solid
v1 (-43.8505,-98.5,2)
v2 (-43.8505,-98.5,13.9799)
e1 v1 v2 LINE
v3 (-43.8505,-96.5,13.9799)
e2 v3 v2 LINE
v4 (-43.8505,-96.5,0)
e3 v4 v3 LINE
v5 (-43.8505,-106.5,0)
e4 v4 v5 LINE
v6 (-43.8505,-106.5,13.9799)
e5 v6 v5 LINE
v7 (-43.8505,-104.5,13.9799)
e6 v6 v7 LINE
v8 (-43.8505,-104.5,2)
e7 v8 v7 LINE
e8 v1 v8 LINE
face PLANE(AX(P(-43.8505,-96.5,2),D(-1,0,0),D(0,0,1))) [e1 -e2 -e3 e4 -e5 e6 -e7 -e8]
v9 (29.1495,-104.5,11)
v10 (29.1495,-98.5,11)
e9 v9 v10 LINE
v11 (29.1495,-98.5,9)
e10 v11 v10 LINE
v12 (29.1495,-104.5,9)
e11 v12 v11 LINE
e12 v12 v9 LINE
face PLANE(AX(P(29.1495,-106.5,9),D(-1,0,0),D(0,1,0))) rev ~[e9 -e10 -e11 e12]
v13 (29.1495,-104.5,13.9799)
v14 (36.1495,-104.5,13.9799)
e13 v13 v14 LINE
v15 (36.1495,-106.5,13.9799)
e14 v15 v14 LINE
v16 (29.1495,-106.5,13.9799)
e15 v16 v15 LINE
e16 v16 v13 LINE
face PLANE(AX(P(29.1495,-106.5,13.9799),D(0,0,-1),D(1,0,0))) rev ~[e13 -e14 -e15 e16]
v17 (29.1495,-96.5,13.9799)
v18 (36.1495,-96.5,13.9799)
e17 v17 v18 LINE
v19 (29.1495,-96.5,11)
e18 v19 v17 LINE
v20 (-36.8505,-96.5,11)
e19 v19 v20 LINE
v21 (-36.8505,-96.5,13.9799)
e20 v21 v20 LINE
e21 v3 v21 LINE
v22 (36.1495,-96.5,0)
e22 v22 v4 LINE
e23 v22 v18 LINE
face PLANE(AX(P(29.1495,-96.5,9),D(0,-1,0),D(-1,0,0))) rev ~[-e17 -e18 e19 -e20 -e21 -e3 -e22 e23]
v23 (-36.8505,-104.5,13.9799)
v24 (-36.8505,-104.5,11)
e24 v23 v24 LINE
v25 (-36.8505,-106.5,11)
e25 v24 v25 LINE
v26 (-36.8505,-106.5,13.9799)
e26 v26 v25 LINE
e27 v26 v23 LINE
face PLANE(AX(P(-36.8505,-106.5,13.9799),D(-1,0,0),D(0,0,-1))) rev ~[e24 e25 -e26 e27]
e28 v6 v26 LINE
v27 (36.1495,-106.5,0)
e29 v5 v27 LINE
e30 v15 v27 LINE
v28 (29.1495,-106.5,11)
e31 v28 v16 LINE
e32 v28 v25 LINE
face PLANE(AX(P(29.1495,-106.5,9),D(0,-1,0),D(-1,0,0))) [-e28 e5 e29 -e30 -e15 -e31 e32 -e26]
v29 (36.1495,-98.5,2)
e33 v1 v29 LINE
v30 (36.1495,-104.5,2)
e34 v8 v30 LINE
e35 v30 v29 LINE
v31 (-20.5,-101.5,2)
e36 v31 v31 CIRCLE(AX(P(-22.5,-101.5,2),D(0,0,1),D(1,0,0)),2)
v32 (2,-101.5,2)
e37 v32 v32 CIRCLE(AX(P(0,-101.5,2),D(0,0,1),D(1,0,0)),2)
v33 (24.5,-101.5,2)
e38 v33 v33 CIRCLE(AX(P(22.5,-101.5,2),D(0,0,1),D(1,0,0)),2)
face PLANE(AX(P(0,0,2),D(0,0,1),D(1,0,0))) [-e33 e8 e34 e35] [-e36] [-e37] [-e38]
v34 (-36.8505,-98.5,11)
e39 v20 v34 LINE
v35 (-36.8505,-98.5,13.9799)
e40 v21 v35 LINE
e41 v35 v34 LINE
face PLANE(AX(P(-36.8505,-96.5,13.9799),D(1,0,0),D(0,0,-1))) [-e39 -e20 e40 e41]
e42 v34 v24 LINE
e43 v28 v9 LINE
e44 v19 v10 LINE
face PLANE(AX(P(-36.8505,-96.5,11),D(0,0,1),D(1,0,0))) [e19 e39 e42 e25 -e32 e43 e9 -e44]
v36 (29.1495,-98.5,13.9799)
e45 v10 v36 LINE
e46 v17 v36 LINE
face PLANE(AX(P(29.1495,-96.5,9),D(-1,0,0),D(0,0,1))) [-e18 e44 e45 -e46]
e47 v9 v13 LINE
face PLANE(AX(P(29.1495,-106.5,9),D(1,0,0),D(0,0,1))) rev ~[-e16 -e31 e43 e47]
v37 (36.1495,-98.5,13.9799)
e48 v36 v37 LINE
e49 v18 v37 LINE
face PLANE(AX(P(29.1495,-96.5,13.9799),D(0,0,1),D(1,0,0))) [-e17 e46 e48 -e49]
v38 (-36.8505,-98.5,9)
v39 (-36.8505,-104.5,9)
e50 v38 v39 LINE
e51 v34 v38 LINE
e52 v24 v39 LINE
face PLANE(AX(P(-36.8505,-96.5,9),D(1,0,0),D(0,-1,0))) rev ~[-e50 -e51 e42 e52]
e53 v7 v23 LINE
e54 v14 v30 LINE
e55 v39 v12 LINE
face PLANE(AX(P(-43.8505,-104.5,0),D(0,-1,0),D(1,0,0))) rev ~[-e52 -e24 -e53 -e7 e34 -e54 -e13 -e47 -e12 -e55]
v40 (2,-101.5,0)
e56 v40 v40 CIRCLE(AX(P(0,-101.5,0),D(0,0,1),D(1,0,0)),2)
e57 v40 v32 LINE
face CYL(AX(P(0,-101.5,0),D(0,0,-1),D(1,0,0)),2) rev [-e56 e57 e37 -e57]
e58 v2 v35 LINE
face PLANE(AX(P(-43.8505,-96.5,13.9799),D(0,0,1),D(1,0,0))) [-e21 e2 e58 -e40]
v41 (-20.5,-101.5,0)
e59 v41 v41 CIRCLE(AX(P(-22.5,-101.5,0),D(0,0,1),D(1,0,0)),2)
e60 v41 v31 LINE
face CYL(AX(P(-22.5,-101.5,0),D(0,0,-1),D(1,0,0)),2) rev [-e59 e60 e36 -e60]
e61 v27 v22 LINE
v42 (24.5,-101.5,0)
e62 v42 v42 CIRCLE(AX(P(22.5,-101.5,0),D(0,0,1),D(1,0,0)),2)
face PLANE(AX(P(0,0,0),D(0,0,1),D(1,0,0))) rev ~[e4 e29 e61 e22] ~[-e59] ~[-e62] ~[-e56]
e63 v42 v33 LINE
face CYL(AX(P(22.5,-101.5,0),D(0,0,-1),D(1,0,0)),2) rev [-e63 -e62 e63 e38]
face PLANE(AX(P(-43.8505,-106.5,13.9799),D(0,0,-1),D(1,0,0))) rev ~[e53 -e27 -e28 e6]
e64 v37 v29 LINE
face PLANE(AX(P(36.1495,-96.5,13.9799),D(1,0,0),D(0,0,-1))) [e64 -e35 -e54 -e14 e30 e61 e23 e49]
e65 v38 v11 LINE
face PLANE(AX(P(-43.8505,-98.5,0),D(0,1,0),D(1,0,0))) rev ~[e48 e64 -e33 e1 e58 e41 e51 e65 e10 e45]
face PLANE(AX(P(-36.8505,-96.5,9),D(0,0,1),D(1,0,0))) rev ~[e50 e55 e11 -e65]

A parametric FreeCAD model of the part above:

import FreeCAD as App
import Part
import Sketcher
from FreeCAD import Vector

doc = App.newDocument("Part")
body = doc.addObject("PartDesign::Body", "Body")

# Sketch on XY plane
sketch1 = doc.addObject("Sketcher::SketchObject", "Sketch")
body.addObject(sketch1)
sketch1.AttachmentSupport = (doc.XY_Plane, [""])
sketch1.MapMode = "FlatFace"
sketch1.addGeometry([
    Part.LineSegment(Vector(36.1495, -106.5, 0), Vector(36.1495, -96.5, 0)),  # 0
    Part.LineSegment(Vector(36.1495, -96.5, 0), Vector(-43.8505, -96.5, 0)),  # 1
    Part.LineSegment(Vector(-43.8505, -96.5, 0), Vector(-43.8505, -106.5, 0)),  # 2
    Part.LineSegment(Vector(-43.8505, -106.5, 0), Vector(36.1495, -106.5, 0)),  # 3
    Part.Circle(Vector(-22.5, -101.5, 0), Vector(0, 0, 1), 2),  # 4
    Part.Circle(Vector(0, -101.5, 0), Vector(0, 0, 1), 2),  # 5
    Part.Circle(Vector(22.5, -101.5, 0), Vector(0, 0, 1), 2),  # 6
], False)
sketch1.addConstraint([
    Sketcher.Constraint("Coincident", 0, 2, 1, 1),
    Sketcher.Constraint("Coincident", 1, 2, 2, 1),
    Sketcher.Constraint("Coincident", 2, 2, 3, 1),
    Sketcher.Constraint("Coincident", 3, 2, 0, 1),
    Sketcher.Constraint("Vertical", 0),
    Sketcher.Constraint("Horizontal", 1),
    Sketcher.Constraint("Vertical", 2),
    Sketcher.Constraint("Horizontal", 3),
    Sketcher.Constraint("Equal", 4, 5),
    Sketcher.Constraint("Equal", 5, 6),
    Sketcher.Constraint("Symmetric", 4, 3, 6, 3, -2),
    Sketcher.Constraint("PointOnObject", 5, 3, -2),
    Sketcher.Constraint("Horizontal", 4, 3, 5, 3),
    Sketcher.Constraint("Diameter", 4, 4.0),
    Sketcher.Constraint("DistanceX", 1, 2, 1, 1, 80.0),
    Sketcher.Constraint("DistanceY", 0, 1, 0, 2, 10.0),
    Sketcher.Constraint("DistanceY", 6, 3, 0, 2, 5.0),
    Sketcher.Constraint("DistanceX", 4, 3, 6, 3, 45.0),
    Sketcher.Constraint("DistanceY", 4, 3, -1, 1, 101.5),
    Sketcher.Constraint("DistanceX", -1, 1, 0, 2, 36.1495),
])
pad1 = doc.addObject("PartDesign::Pad", "Pad")
body.addObject(pad1)
pad1.Profile = sketch1
pad1.Length = 2

# Sketch on XZ plane
sketch2 = doc.addObject("Sketcher::SketchObject", "Sketch001")
body.addObject(sketch2)
sketch2.AttachmentSupport = (doc.XZ_Plane, [""])
sketch2.MapMode = "FlatFace"
sketch2.AttachmentOffset = App.Placement(Vector(0, 0, 106.5), App.Rotation())
sketch2.addGeometry([
    Part.LineSegment(Vector(-43.8505, 13.9799, 0), Vector(-43.8505, 2, 0)),  # 0
    Part.LineSegment(Vector(-43.8505, 2, 0), Vector(36.1495, 2, 0)),  # 1
    Part.LineSegment(Vector(36.1495, 2, 0), Vector(36.1495, 13.9799, 0)),  # 2
    Part.LineSegment(Vector(36.1495, 13.9799, 0), Vector(29.1495, 13.9799, 0)),  # 3
    Part.LineSegment(Vector(29.1495, 13.9799, 0), Vector(29.1495, 9, 0)),  # 4
    Part.LineSegment(Vector(29.1495, 9, 0), Vector(-36.8505, 9, 0)),  # 5
    Part.LineSegment(Vector(-36.8505, 9, 0), Vector(-36.8505, 13.9799, 0)),  # 6
    Part.LineSegment(Vector(-36.8505, 13.9799, 0), Vector(-43.8505, 13.9799, 0)),  # 7
], False)
sketch2.addConstraint([
    Sketcher.Constraint("Coincident", 0, 2, 1, 1),
    Sketcher.Constraint("Coincident", 1, 2, 2, 1),
    Sketcher.Constraint("Coincident", 2, 2, 3, 1),
    Sketcher.Constraint("Coincident", 3, 2, 4, 1),
    Sketcher.Constraint("Coincident", 4, 2, 5, 1),
    Sketcher.Constraint("Coincident", 5, 2, 6, 1),
    Sketcher.Constraint("Coincident", 6, 2, 7, 1),
    Sketcher.Constraint("Coincident", 7, 2, 0, 1),
    Sketcher.Constraint("Vertical", 0),
    Sketcher.Constraint("Horizontal", 1),
    Sketcher.Constraint("Vertical", 2),
    Sketcher.Constraint("Horizontal", 3),
    Sketcher.Constraint("Vertical", 4),
    Sketcher.Constraint("Horizontal", 5),
    Sketcher.Constraint("Vertical", 6),
    Sketcher.Constraint("Horizontal", 7),
    Sketcher.Constraint("Horizontal", 3, 2, 6, 2),
    Sketcher.Constraint("Equal", 3, 7),
    Sketcher.Constraint("DistanceX", 3, 2, 3, 1, 7.0),
    Sketcher.Constraint("DistanceY", 1, 2, 4, 2, 7.0),
    Sketcher.Constraint("DistanceX", 1, 1, 1, 2, 80.0),
    Sketcher.Constraint("DistanceY", -1, 1, 0, 2, 2.0),
    Sketcher.Constraint("DistanceY", 0, 2, 0, 1, 11.98),
    Sketcher.Constraint("DistanceX", 0, 2, -1, 1, 43.8505),
])
pad2 = doc.addObject("PartDesign::Pad", "Pad001")
body.addObject(pad2)
pad2.Profile = sketch2
pad2.Length = 2
pad2.Reversed = True

# Sketch on XZ plane
sketch3 = doc.addObject("Sketcher::SketchObject", "Sketch002")
body.addObject(sketch3)
sketch3.AttachmentSupport = (doc.XZ_Plane, [""])
sketch3.MapMode = "FlatFace"
sketch3.AttachmentOffset = App.Placement(Vector(0, 0, 96.5), App.Rotation())
sketch3.addGeometry([
    Part.LineSegment(Vector(36.1495, 2, 0), Vector(-43.8505, 2, 0)),  # 0
    Part.LineSegment(Vector(-43.8505, 2, 0), Vector(-43.8505, 13.9799, 0)),  # 1
    Part.LineSegment(Vector(-43.8505, 13.9799, 0), Vector(-36.8505, 13.9799, 0)),  # 2
    Part.LineSegment(Vector(-36.8505, 13.9799, 0), Vector(-36.8505, 9, 0)),  # 3
    Part.LineSegment(Vector(-36.8505, 9, 0), Vector(29.1495, 9, 0)),  # 4
    Part.LineSegment(Vector(29.1495, 9, 0), Vector(29.1495, 13.9799, 0)),  # 5
    Part.LineSegment(Vector(29.1495, 13.9799, 0), Vector(36.1495, 13.9799, 0)),  # 6
    Part.LineSegment(Vector(36.1495, 13.9799, 0), Vector(36.1495, 2, 0)),  # 7
], False)
sketch3.addConstraint([
    Sketcher.Constraint("Coincident", 0, 2, 1, 1),
    Sketcher.Constraint("Coincident", 1, 2, 2, 1),
    Sketcher.Constraint("Coincident", 2, 2, 3, 1),
    Sketcher.Constraint("Coincident", 3, 2, 4, 1),
    Sketcher.Constraint("Coincident", 4, 2, 5, 1),
    Sketcher.Constraint("Coincident", 5, 2, 6, 1),
    Sketcher.Constraint("Coincident", 6, 2, 7, 1),
    Sketcher.Constraint("Coincident", 7, 2, 0, 1),
    Sketcher.Constraint("Horizontal", 0),
    Sketcher.Constraint("Vertical", 1),
    Sketcher.Constraint("Horizontal", 2),
    Sketcher.Constraint("Vertical", 3),
    Sketcher.Constraint("Horizontal", 4),
    Sketcher.Constraint("Vertical", 5),
    Sketcher.Constraint("Horizontal", 6),
    Sketcher.Constraint("Vertical", 7),
    Sketcher.Constraint("Horizontal", 2, 2, 5, 2),
    Sketcher.Constraint("Equal", 2, 6),
    Sketcher.Constraint("DistanceX", 0, 2, 0, 1, 80.0),
    Sketcher.Constraint("DistanceX", 2, 1, 2, 2, 7.0),
    Sketcher.Constraint("DistanceY", -1, 1, 0, 2, 2.0),
    Sketcher.Constraint("DistanceY", -1, 1, 3, 2, 9.0),
    Sketcher.Constraint("DistanceY", 1, 1, 1, 2, 11.98),
    Sketcher.Constraint("DistanceX", 0, 2, -1, 1, 43.8505),
])
pad3 = doc.addObject("PartDesign::Pad", "Pad002")
body.addObject(pad3)
pad3.Profile = sketch3
pad3.Length = 2

# Sketch on XY plane
sketch4 = doc.addObject("Sketcher::SketchObject", "Sketch003")
body.addObject(sketch4)
sketch4.AttachmentSupport = (doc.XY_Plane, [""])
sketch4.MapMode = "FlatFace"
sketch4.AttachmentOffset = App.Placement(Vector(0, 0, 9), App.Rotation())
sketch4.addGeometry([
    Part.LineSegment(Vector(-36.8505, -106.5, 0), Vector(29.1495, -106.5, 0)),
    Part.LineSegment(Vector(29.1495, -106.5, 0), Vector(29.1495, -96.5, 0)),
    Part.LineSegment(Vector(29.1495, -96.5, 0), Vector(-36.8505, -96.5, 0)),
    Part.LineSegment(Vector(-36.8505, -96.5, 0), Vector(-36.8505, -106.5, 0)),
], False)
sketch4.addConstraint([
    Sketcher.Constraint("Coincident", 0, 2, 1, 1),
    Sketcher.Constraint("Coincident", 1, 2, 2, 1),
    Sketcher.Constraint("Coincident", 2, 2, 3, 1),
    Sketcher.Constraint("Coincident", 3, 2, 0, 1),
    Sketcher.Constraint("Horizontal", 0),
    Sketcher.Constraint("Vertical", 1),
    Sketcher.Constraint("Horizontal", 2),
    Sketcher.Constraint("Vertical", 3),
    Sketcher.Constraint("DistanceX", 0, 1, 0, 2, 66.0),
    Sketcher.Constraint("DistanceY", 1, 1, 1, 2, 10.0),
    Sketcher.Constraint("DistanceY", 0, 2, -1, 1, 106.5),
    Sketcher.Constraint("DistanceX", -1, 1, 0, 2, 29.1495),
])
pad4 = doc.addObject("PartDesign::Pad", "Pad003")
body.addObject(pad4)
pad4.Profile = sketch4
pad4.Length = 2

doc.recompute()
